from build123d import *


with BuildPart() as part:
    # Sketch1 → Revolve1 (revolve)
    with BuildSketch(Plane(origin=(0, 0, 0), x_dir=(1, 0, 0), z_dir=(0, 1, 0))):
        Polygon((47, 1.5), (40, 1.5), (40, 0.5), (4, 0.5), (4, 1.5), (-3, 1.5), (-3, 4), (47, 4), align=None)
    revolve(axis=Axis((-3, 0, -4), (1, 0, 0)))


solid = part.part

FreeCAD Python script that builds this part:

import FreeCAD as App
import Part
import Sketcher

V = App.Vector
Q = App.Units.Quantity

doc = App.newDocument("Part")
body = doc.addObject("PartDesign::Body", "Body")

# Sketch on XZ plane
sketch1 = body.newObject("Sketcher::SketchObject", "Sketch")
sketch1.AttachmentSupport = (doc.getObject("XZ_Plane"), [""])
sketch1.MapMode = "FlatFace"
sketch1.addGeometry(Part.LineSegment(V(40, -1.5, 0), V(47, -1.5, 0)), False)
sketch1.addGeometry(Part.LineSegment(V(47, -1.5, 0), V(47, -4, 0)), False)
sketch1.addGeometry(Part.LineSegment(V(47, -4, 0), V(-3, -4, 0)), False)
sketch1.addGeometry(Part.LineSegment(V(-3, -4, 0), V(-3, -1.5, 0)), False)
sketch1.addGeometry(Part.LineSegment(V(-3, -1.5, 0), V(4, -1.5, 0)), False)
sketch1.addGeometry(Part.LineSegment(V(4, -1.5, 0), V(4, -0.5, 0)), False)
sketch1.addGeometry(Part.LineSegment(V(4, -0.5, 0), V(40, -0.5, 0)), False)
sketch1.addGeometry(Part.LineSegment(V(40, -0.5, 0), V(40, -1.5, 0)), False)
sketch1.addGeometry(Part.LineSegment(V(-3, -4, 0), V(47, -4, 0)), True)  # axis
sketch1.addConstraint(Sketcher.Constraint("Coincident", 0, 2, 1, 1))
sketch1.addConstraint(Sketcher.Constraint("Coincident", 1, 2, 2, 1))
sketch1.addConstraint(Sketcher.Constraint("Coincident", 2, 2, 3, 1))
sketch1.addConstraint(Sketcher.Constraint("Coincident", 3, 2, 4, 1))
sketch1.addConstraint(Sketcher.Constraint("Coincident", 4, 2, 5, 1))
sketch1.addConstraint(Sketcher.Constraint("Coincident", 5, 2, 6, 1))
sketch1.addConstraint(Sketcher.Constraint("Coincident", 6, 2, 7, 1))
sketch1.addConstraint(Sketcher.Constraint("Coincident", 7, 2, 0, 1))
sketch1.addConstraint(Sketcher.Constraint("Horizontal", 0))
sketch1.addConstraint(Sketcher.Constraint("Vertical", 1))
sketch1.addConstraint(Sketcher.Constraint("Horizontal", 2))
sketch1.addConstraint(Sketcher.Constraint("Vertical", 3))
sketch1.addConstraint(Sketcher.Constraint("Horizontal", 4))
sketch1.addConstraint(Sketcher.Constraint("Vertical", 5))
sketch1.addConstraint(Sketcher.Constraint("Horizontal", 6))
sketch1.addConstraint(Sketcher.Constraint("Vertical", 7))
sketch1.addConstraint(Sketcher.Constraint("Horizontal", 8))
sketch1.addConstraint(Sketcher.Constraint("Coincident", 8, 1, 2, 2))
sketch1.addConstraint(Sketcher.Constraint("Horizontal", 0, 2, 3, 2))
sketch1.addConstraint(Sketcher.Constraint("Vertical", 0, 2, 8, 2))
sketch1.addConstraint(Sketcher.Constraint("Equal", 0, 4))
sketch1.addConstraint(Sketcher.Constraint("DistanceX", 0, 1, 0, 2, Q("7 mm")))
sketch1.addConstraint(Sketcher.Constraint("DistanceX", 2, 2, 2, 1, Q("50 mm")))
sketch1.addConstraint(Sketcher.Constraint("DistanceY", 5, 1, 5, 2, Q("1 mm")))
sketch1.addConstraint(Sketcher.Constraint("DistanceY", 1, 2, 1, 1, Q("2.5 mm")))
sketch1.addConstraint(Sketcher.Constraint("DistanceX", -1, 1, 0, 2, Q("47 mm")))
sketch1.addConstraint(Sketcher.Constraint("DistanceY", 1, 2, -1, 1, Q("4 mm")))
revolution = body.newObject("PartDesign::Revolution", "Revolution")
revolution.Profile = sketch1
revolution.ReferenceAxis = (sketch1, ["Axis0"])
revolution.Angle = 360

doc.recompute()
